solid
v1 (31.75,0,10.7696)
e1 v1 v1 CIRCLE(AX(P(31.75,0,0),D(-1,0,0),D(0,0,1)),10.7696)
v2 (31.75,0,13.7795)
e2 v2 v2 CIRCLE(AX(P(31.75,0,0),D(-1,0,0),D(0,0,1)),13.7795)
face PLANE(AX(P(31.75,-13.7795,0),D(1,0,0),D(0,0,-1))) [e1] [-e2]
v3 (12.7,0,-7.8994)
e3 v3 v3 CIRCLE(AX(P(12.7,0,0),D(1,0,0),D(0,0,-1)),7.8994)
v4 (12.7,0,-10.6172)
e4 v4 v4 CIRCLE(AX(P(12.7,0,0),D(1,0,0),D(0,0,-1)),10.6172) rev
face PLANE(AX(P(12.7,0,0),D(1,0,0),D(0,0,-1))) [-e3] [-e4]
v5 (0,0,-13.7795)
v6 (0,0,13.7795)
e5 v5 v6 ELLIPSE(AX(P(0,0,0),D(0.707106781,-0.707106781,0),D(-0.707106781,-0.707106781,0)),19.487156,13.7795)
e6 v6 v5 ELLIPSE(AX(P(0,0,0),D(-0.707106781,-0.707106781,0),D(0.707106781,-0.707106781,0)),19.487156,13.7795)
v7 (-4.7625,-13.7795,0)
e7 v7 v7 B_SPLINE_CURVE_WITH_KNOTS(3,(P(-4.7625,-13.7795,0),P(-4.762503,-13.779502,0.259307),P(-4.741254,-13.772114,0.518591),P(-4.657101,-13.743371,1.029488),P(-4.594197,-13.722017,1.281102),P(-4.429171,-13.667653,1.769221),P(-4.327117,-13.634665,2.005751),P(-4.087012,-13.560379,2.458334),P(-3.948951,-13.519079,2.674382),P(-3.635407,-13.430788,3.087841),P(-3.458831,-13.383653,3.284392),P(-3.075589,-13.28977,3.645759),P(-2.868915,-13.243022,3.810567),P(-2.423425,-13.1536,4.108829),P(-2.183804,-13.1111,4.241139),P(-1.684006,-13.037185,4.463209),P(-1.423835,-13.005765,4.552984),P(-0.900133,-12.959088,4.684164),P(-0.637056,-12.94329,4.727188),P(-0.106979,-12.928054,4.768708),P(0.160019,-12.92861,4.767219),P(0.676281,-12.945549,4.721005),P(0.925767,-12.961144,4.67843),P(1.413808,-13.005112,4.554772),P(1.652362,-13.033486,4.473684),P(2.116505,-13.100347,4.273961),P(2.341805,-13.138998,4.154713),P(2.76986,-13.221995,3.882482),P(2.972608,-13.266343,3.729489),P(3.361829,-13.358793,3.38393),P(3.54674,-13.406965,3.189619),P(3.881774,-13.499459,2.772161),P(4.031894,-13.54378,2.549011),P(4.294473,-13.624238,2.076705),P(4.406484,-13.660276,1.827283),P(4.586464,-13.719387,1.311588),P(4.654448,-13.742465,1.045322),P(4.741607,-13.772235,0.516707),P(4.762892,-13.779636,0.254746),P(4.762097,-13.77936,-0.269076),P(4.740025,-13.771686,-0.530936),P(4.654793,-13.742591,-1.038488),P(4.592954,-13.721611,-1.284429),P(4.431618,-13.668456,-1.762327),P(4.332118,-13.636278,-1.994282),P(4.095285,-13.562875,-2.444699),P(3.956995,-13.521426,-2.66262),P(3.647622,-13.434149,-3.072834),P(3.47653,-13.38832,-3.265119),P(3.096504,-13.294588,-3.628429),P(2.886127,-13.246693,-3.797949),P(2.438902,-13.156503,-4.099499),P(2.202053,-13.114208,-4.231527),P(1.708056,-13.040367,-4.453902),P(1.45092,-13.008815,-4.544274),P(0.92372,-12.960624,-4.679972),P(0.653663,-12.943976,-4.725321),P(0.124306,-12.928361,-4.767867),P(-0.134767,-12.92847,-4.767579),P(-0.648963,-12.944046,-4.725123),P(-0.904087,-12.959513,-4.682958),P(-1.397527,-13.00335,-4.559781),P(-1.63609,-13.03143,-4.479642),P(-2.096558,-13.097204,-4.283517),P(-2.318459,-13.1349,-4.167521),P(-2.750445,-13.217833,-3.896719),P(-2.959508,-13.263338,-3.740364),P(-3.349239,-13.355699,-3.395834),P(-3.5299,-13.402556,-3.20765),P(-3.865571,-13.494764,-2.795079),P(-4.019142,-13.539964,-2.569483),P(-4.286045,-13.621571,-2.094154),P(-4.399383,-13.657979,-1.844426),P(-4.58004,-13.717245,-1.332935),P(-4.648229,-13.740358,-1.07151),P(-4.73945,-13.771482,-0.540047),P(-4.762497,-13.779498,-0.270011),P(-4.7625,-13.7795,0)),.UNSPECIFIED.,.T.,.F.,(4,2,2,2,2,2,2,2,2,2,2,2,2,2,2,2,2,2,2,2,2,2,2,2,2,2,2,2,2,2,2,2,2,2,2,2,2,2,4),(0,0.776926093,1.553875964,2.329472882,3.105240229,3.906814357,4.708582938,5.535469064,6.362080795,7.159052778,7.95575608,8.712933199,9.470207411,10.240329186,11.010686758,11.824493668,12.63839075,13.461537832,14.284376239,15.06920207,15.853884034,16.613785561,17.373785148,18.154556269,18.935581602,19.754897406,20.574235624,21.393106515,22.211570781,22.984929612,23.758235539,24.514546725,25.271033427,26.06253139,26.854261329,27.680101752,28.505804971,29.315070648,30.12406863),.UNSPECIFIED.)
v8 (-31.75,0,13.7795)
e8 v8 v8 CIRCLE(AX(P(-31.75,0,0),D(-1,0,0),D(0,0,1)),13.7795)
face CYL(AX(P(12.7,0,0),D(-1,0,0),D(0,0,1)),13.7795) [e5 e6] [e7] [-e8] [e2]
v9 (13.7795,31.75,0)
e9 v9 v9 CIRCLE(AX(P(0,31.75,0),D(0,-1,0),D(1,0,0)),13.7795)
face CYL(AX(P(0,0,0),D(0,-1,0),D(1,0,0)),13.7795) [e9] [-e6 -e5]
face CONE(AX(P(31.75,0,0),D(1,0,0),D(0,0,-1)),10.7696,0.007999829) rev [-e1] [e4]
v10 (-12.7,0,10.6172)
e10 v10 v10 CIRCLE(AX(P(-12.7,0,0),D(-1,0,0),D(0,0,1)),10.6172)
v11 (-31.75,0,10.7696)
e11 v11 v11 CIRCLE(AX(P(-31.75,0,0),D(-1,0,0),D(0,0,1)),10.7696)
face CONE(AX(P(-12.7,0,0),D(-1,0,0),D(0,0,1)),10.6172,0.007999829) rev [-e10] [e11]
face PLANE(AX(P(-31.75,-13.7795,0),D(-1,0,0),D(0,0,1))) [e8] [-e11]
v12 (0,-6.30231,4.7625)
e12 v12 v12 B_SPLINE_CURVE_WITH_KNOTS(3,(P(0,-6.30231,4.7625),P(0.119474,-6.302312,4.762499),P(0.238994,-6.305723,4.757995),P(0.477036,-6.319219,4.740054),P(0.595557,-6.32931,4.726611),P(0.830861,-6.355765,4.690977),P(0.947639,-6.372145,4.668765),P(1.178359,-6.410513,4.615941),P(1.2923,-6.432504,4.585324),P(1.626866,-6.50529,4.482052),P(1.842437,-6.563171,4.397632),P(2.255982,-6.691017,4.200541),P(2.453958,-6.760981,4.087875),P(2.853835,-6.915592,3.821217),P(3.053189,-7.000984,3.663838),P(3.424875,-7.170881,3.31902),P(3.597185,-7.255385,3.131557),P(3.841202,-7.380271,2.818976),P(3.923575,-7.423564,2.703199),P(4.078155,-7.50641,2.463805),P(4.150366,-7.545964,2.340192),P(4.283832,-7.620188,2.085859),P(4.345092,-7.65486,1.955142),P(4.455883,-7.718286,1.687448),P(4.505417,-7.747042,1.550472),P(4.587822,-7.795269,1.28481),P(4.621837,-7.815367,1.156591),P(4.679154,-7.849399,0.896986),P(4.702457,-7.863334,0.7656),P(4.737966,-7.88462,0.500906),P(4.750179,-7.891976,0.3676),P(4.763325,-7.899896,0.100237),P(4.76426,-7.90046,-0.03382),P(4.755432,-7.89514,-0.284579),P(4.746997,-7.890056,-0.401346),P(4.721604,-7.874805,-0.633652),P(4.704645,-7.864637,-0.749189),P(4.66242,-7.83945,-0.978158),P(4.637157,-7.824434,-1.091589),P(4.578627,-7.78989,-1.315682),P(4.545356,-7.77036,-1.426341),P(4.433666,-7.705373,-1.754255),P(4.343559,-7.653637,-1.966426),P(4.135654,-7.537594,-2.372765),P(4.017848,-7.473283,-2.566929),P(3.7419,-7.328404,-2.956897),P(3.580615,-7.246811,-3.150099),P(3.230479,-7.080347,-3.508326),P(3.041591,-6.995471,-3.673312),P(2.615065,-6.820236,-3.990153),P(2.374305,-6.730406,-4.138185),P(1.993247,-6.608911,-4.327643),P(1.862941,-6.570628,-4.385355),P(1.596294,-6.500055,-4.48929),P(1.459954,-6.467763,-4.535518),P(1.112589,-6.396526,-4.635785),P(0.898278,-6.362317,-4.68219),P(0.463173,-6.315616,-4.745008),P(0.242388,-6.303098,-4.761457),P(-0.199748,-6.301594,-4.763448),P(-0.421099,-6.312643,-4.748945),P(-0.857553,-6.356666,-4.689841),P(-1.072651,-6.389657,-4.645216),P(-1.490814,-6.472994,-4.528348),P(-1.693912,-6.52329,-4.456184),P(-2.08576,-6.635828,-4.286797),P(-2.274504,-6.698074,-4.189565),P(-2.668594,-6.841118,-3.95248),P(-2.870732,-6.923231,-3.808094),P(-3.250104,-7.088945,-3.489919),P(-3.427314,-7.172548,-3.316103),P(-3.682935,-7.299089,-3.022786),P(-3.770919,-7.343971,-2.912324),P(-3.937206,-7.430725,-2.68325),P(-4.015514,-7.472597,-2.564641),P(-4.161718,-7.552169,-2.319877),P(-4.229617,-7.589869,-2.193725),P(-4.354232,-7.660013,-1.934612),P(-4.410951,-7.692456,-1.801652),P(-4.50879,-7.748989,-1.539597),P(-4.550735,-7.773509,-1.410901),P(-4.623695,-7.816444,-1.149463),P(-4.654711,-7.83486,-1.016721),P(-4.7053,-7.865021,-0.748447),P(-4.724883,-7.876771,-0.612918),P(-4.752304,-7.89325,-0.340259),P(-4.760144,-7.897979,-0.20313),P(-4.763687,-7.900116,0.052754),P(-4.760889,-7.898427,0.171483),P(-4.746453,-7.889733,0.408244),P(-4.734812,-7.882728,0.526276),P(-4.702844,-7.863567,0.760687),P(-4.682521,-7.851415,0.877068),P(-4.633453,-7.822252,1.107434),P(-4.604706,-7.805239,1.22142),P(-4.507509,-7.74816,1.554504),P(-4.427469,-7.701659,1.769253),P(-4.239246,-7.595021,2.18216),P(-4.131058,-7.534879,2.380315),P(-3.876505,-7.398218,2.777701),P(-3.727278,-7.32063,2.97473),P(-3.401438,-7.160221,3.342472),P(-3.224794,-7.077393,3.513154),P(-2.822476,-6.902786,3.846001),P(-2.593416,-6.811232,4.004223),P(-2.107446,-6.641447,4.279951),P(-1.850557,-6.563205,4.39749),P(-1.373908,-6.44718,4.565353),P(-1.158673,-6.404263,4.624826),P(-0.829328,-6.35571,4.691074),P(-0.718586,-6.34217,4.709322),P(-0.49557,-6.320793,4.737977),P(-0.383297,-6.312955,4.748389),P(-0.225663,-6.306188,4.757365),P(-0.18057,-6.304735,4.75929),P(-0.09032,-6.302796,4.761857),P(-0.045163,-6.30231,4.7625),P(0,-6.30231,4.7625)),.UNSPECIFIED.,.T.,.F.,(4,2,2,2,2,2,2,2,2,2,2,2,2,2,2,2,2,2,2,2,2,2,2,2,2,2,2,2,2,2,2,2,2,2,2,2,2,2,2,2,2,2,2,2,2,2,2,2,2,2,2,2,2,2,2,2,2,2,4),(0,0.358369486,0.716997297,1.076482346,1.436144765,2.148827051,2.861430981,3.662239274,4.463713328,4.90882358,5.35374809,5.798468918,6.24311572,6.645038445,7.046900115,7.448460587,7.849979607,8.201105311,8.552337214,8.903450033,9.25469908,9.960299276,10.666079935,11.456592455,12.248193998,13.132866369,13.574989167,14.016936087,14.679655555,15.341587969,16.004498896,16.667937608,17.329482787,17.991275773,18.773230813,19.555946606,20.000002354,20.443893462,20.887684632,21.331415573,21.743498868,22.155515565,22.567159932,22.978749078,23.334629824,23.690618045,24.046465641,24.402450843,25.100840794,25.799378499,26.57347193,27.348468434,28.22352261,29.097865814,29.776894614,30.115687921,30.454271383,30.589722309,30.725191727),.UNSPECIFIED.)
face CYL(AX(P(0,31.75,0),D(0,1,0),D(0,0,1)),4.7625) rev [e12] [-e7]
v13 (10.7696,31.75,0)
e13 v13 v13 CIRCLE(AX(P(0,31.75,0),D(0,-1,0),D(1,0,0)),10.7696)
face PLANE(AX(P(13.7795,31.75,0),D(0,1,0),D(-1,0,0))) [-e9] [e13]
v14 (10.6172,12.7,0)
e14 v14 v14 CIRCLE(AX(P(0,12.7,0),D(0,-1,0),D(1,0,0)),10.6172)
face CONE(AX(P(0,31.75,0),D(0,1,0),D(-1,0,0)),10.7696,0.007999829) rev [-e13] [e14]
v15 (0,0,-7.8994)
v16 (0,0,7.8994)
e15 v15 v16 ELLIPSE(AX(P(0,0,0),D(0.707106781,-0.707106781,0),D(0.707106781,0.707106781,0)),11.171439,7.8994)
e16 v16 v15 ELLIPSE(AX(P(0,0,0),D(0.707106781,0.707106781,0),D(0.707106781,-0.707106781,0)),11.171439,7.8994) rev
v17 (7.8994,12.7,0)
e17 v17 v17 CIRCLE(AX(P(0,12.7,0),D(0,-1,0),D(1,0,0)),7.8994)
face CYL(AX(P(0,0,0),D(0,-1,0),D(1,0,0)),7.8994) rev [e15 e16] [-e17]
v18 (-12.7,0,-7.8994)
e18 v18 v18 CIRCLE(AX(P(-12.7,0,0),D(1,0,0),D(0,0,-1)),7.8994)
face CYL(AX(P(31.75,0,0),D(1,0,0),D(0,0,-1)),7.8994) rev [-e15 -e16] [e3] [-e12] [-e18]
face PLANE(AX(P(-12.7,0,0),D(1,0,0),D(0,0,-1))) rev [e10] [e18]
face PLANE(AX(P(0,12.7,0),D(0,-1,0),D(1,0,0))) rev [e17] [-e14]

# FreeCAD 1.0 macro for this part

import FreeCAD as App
import Part
import Sketcher

V = App.Vector
Q = App.Units.Quantity


def add_polygon(sketch, points):
    """Adds a closed chain of lines whose ends are joined by coincident constraints."""
    first, n = sketch.GeometryCount, len(points)
    for a, b in zip(points, points[1:] + points[:1]):
        sketch.addGeometry(Part.LineSegment(App.Vector(*a, 0), App.Vector(*b, 0)), False)
    for i in range(n):
        sketch.addConstraint(Sketcher.Constraint("Coincident", first + i, 2, first + (i + 1) % n, 1))

doc = App.newDocument("Part")
body = doc.addObject("PartDesign::Body", "Body")
body.AllowCompound = True

# Sketch on XY plane
sketch1 = body.newObject("Sketcher::SketchObject", "Sketch")
sketch1.AttachmentSupport = (doc.getObject("XY_Plane"), [""])
sketch1.MapMode = "FlatFace"
add_polygon(sketch1, [(-31.8, -13.8), (-12.7, -13.8), (-12.7, -10.6), (-31.8, -10.8)])  # lines 0-3
add_polygon(sketch1, [(31.8, -10.8), (12.7, -10.6), (12.7, -13.8), (31.8, -13.8)])  # lines 4-7
sketch1.addConstraint(Sketcher.Constraint("Horizontal", 0))
sketch1.addConstraint(Sketcher.Constraint("Vertical", 1))
sketch1.addConstraint(Sketcher.Constraint("Vertical", 3))
sketch1.addConstraint(Sketcher.Constraint("Vertical", 5))
sketch1.addConstraint(Sketcher.Constraint("Horizontal", 6))
sketch1.addConstraint(Sketcher.Constraint("Vertical", 7))
sketch1.addConstraint(Sketcher.Constraint("Symmetric", 1, 2, 4, 2, -2))
sketch1.addConstraint(Sketcher.Constraint("Symmetric", 3, 2, 6, 2, -2))
sketch1.addConstraint(Sketcher.Constraint("Horizontal", 2, 2, 7, 2))
sketch1.addConstraint(Sketcher.Constraint("DistanceX", 1, 2, 4, 2, Q("1 in")))
sketch1.addConstraint(Sketcher.Constraint("DistanceX", 0, 1, 0, 2, Q("0.75 in")))
sketch1.addConstraint(Sketcher.Constraint("DistanceY", 1, 1, 1, 2, Q("0.1245 in")))
sketch1.addConstraint(Sketcher.Constraint("DistanceY", 3, 2, 3, 1, Q("0.1185 in")))
sketch1.addConstraint(Sketcher.Constraint("DistanceY", 1, 2, -1, 1, Q("0.418 in")))
revolution = body.newObject("PartDesign::Revolution", "Revolution")
revolution.Profile = sketch1
revolution.ReferenceAxis = (sketch1, ["H_Axis"])
revolution.Angle = 360
body2 = doc.addObject("PartDesign::Body", "Body001")

# Sketch on XY plane
sketch2 = body2.newObject("Sketcher::SketchObject", "Sketch001")
sketch2.AttachmentSupport = (doc.getObject("XY_Plane001"), [""])
sketch2.MapMode = "FlatFace"
add_polygon(sketch2, [(10.8, 31.8), (10.6, 12.7), (13.8, 12.7), (13.8, 31.8)])  # lines 0-3
sketch2.addConstraint(Sketcher.Constraint("Horizontal", 1))
sketch2.addConstraint(Sketcher.Constraint("Vertical", 2))
sketch2.addConstraint(Sketcher.Constraint("Horizontal", 3))
sketch2.addConstraint(Sketcher.Constraint("DistanceY", 2, 1, 2, 2, Q("0.75 in")))
sketch2.addConstraint(Sketcher.Constraint("DistanceY", -1, 1, 0, 2, Q("0.5 in")))
sketch2.addConstraint(Sketcher.Constraint("DistanceX", 1, 1, 1, 2, Q("0.1245 in")))
sketch2.addConstraint(Sketcher.Constraint("DistanceX", 3, 2, 3, 1, Q("0.1185 in")))
sketch2.addConstraint(Sketcher.Constraint("DistanceX", -1, 1, 0, 2, Q("0.418 in")))
revolution2 = body2.newObject("PartDesign::Revolution", "Revolution001")
revolution2.Profile = sketch2
revolution2.ReferenceAxis = (sketch2, ["V_Axis"])
revolution2.Angle = 360
doc.recompute()

boolean = body.newObject("PartDesign::Boolean", "Boolean")
boolean.Type = "Fuse"
boolean.addObjects([body2])

# Sketch on YZ plane
sketch3 = body.newObject("Sketcher::SketchObject", "Sketch002")
sketch3.AttachmentSupport = (doc.getObject("YZ_Plane"), [""])
sketch3.MapMode = "FlatFace"
sketch3.AttachmentOffset = App.Placement(V(0, 0, -0.5 * 25.4), App.Rotation())
sketch3.addGeometry(Part.Circle(V(0, 0, 0), V(0, 0, 1), 14), False)
sketch3.addConstraint(Sketcher.Constraint("Coincident", 0, 3, -1, 1))
sketch3.addConstraint(Sketcher.Constraint("Diameter", 0, Q("1.085 in")))
pad1 = body.newObject("PartDesign::Pad", "Pad")
pad1.Profile = sketch3
pad1.Length = Q("1 in")

# Sketch on XZ plane
sketch4 = body.newObject("Sketcher::SketchObject", "Sketch003")
sketch4.AttachmentSupport = (doc.getObject("XZ_Plane"), [""])
sketch4.MapMode = "FlatFace"
sketch4.AttachmentOffset = App.Placement(V(0, 0, -0.5 * 25.4), App.Rotation())
sketch4.addGeometry(Part.Circle(V(0, 0, 0), V(0, 0, 1), 14), False)
sketch4.addConstraint(Sketcher.Constraint("Coincident", 0, 3, -1, 1))
sketch4.addConstraint(Sketcher.Constraint("Diameter", 0, Q("1.085 in")))
pad2 = body.newObject("PartDesign::Pad", "Pad001")
pad2.Profile = sketch4
pad2.Length = Q("0.5 in")

# Sketch on XY plane
sketch5 = body.newObject("Sketcher::SketchObject", "Sketch004")
sketch5.AttachmentSupport = (doc.getObject("XY_Plane"), [""])
sketch5.MapMode = "FlatFace"
add_polygon(sketch5, [(-31.8, -10.8), (-12.7, -10.6), (-12.7, -7.9), (12.7, -7.9), (12.7, -10.6), (31.8, -10.8), (31.8, 0), (-31.8, 0)])  # lines 0-7
sketch5.addConstraint(Sketcher.Constraint("Vertical", 1))
sketch5.addConstraint(Sketcher.Constraint("Horizontal", 2))
sketch5.addConstraint(Sketcher.Constraint("Vertical", 3))
sketch5.addConstraint(Sketcher.Constraint("Vertical", 5))
sketch5.addConstraint(Sketcher.Constraint("Horizontal", 6))
sketch5.addConstraint(Sketcher.Constraint("Vertical", 7))
sketch5.addConstraint(Sketcher.Constraint("Symmetric", 5, 2, 6, 2, -1, 1))
sketch5.addConstraint(Sketcher.Constraint("Symmetric", 0, 2, 3, 2, -2))
sketch5.addConstraint(Sketcher.Constraint("Horizontal", 4, 2, 7, 2))
sketch5.addConstraint(Sketcher.Constraint("DistanceX", 2, 1, 2, 2, Q("1 in")))
sketch5.addConstraint(Sketcher.Constraint("DistanceX", 6, 2, 6, 1, Q("2.5 in")))
sketch5.addConstraint(Sketcher.Constraint("DistanceY", 1, 1, 1, 2, Q("0.107 in")))
sketch5.addConstraint(Sketcher.Constraint("DistanceY", 5, 1, 5, 2, Q("0.424 in")))
sketch5.addConstraint(Sketcher.Constraint("DistanceY", 0, 2, -1, 1, Q("0.418 in")))
groove = body.newObject("PartDesign::Groove", "Groove")
groove.Profile = sketch5
groove.ReferenceAxis = (sketch5, ["H_Axis"])
groove.Angle = 360

# Sketch on XY plane
sketch6 = body.newObject("Sketcher::SketchObject", "Sketch005")
sketch6.AttachmentSupport = (doc.getObject("XY_Plane"), [""])
sketch6.MapMode = "FlatFace"
add_polygon(sketch6, [(10.6, 12.7), (10.8, 31.8), (0, 31.8), (0, 0), (7.9, 0), (7.9, 12.7)])  # lines 0-5
sketch6.addConstraint(Sketcher.Constraint("Horizontal", 1))
sketch6.addConstraint(Sketcher.Constraint("Vertical", 2))
sketch6.addConstraint(Sketcher.Constraint("Horizontal", 3))
sketch6.addConstraint(Sketcher.Constraint("Vertical", 4))
sketch6.addConstraint(Sketcher.Constraint("Horizontal", 5))
sketch6.addConstraint(Sketcher.Constraint("Coincident", 2, 2, -1, 1))
sketch6.addConstraint(Sketcher.Constraint("DistanceY", 4, 1, 4, 2, Q("0.5 in")))
sketch6.addConstraint(Sketcher.Constraint("DistanceY", 2, 2, 2, 1, Q("1.25 in")))
sketch6.addConstraint(Sketcher.Constraint("DistanceX", 1, 2, 1, 1, Q("0.424 in")))
sketch6.addConstraint(Sketcher.Constraint("DistanceX", 3, 1, 3, 2, Q("0.311 in")))
sketch6.addConstraint(Sketcher.Constraint("DistanceX", 5, 1, 5, 2, Q("0.107 in")))
groove2 = body.newObject("PartDesign::Groove", "Groove001")
groove2.Profile = sketch6
groove2.ReferenceAxis = (sketch6, ["V_Axis"])
groove2.Angle = 360

# Sketch on XZ plane
sketch7 = body.newObject("Sketcher::SketchObject", "Sketch006")
sketch7.AttachmentSupport = (doc.getObject("XZ_Plane"), [""])
sketch7.MapMode = "FlatFace"
sketch7.AttachmentOffset = App.Placement(V(0, 0, -1.25 * 25.4), App.Rotation())
sketch7.addGeometry(Part.Circle(V(0, 0, 0), V(0, 0, 1), 4.8), False)
sketch7.addConstraint(Sketcher.Constraint("Coincident", 0, 3, -1, 1))
sketch7.addConstraint(Sketcher.Constraint("Diameter", 0, Q("0.375 in")))
doc.recompute()
hole = body.newObject("PartDesign::Hole", "Hole")
hole.Profile = sketch7
hole.ThreadType = "None"
hole.Diameter = Q("0.375 in")
hole.DepthType = "ThroughAll"
hole.Reversed = True

doc.recompute()
